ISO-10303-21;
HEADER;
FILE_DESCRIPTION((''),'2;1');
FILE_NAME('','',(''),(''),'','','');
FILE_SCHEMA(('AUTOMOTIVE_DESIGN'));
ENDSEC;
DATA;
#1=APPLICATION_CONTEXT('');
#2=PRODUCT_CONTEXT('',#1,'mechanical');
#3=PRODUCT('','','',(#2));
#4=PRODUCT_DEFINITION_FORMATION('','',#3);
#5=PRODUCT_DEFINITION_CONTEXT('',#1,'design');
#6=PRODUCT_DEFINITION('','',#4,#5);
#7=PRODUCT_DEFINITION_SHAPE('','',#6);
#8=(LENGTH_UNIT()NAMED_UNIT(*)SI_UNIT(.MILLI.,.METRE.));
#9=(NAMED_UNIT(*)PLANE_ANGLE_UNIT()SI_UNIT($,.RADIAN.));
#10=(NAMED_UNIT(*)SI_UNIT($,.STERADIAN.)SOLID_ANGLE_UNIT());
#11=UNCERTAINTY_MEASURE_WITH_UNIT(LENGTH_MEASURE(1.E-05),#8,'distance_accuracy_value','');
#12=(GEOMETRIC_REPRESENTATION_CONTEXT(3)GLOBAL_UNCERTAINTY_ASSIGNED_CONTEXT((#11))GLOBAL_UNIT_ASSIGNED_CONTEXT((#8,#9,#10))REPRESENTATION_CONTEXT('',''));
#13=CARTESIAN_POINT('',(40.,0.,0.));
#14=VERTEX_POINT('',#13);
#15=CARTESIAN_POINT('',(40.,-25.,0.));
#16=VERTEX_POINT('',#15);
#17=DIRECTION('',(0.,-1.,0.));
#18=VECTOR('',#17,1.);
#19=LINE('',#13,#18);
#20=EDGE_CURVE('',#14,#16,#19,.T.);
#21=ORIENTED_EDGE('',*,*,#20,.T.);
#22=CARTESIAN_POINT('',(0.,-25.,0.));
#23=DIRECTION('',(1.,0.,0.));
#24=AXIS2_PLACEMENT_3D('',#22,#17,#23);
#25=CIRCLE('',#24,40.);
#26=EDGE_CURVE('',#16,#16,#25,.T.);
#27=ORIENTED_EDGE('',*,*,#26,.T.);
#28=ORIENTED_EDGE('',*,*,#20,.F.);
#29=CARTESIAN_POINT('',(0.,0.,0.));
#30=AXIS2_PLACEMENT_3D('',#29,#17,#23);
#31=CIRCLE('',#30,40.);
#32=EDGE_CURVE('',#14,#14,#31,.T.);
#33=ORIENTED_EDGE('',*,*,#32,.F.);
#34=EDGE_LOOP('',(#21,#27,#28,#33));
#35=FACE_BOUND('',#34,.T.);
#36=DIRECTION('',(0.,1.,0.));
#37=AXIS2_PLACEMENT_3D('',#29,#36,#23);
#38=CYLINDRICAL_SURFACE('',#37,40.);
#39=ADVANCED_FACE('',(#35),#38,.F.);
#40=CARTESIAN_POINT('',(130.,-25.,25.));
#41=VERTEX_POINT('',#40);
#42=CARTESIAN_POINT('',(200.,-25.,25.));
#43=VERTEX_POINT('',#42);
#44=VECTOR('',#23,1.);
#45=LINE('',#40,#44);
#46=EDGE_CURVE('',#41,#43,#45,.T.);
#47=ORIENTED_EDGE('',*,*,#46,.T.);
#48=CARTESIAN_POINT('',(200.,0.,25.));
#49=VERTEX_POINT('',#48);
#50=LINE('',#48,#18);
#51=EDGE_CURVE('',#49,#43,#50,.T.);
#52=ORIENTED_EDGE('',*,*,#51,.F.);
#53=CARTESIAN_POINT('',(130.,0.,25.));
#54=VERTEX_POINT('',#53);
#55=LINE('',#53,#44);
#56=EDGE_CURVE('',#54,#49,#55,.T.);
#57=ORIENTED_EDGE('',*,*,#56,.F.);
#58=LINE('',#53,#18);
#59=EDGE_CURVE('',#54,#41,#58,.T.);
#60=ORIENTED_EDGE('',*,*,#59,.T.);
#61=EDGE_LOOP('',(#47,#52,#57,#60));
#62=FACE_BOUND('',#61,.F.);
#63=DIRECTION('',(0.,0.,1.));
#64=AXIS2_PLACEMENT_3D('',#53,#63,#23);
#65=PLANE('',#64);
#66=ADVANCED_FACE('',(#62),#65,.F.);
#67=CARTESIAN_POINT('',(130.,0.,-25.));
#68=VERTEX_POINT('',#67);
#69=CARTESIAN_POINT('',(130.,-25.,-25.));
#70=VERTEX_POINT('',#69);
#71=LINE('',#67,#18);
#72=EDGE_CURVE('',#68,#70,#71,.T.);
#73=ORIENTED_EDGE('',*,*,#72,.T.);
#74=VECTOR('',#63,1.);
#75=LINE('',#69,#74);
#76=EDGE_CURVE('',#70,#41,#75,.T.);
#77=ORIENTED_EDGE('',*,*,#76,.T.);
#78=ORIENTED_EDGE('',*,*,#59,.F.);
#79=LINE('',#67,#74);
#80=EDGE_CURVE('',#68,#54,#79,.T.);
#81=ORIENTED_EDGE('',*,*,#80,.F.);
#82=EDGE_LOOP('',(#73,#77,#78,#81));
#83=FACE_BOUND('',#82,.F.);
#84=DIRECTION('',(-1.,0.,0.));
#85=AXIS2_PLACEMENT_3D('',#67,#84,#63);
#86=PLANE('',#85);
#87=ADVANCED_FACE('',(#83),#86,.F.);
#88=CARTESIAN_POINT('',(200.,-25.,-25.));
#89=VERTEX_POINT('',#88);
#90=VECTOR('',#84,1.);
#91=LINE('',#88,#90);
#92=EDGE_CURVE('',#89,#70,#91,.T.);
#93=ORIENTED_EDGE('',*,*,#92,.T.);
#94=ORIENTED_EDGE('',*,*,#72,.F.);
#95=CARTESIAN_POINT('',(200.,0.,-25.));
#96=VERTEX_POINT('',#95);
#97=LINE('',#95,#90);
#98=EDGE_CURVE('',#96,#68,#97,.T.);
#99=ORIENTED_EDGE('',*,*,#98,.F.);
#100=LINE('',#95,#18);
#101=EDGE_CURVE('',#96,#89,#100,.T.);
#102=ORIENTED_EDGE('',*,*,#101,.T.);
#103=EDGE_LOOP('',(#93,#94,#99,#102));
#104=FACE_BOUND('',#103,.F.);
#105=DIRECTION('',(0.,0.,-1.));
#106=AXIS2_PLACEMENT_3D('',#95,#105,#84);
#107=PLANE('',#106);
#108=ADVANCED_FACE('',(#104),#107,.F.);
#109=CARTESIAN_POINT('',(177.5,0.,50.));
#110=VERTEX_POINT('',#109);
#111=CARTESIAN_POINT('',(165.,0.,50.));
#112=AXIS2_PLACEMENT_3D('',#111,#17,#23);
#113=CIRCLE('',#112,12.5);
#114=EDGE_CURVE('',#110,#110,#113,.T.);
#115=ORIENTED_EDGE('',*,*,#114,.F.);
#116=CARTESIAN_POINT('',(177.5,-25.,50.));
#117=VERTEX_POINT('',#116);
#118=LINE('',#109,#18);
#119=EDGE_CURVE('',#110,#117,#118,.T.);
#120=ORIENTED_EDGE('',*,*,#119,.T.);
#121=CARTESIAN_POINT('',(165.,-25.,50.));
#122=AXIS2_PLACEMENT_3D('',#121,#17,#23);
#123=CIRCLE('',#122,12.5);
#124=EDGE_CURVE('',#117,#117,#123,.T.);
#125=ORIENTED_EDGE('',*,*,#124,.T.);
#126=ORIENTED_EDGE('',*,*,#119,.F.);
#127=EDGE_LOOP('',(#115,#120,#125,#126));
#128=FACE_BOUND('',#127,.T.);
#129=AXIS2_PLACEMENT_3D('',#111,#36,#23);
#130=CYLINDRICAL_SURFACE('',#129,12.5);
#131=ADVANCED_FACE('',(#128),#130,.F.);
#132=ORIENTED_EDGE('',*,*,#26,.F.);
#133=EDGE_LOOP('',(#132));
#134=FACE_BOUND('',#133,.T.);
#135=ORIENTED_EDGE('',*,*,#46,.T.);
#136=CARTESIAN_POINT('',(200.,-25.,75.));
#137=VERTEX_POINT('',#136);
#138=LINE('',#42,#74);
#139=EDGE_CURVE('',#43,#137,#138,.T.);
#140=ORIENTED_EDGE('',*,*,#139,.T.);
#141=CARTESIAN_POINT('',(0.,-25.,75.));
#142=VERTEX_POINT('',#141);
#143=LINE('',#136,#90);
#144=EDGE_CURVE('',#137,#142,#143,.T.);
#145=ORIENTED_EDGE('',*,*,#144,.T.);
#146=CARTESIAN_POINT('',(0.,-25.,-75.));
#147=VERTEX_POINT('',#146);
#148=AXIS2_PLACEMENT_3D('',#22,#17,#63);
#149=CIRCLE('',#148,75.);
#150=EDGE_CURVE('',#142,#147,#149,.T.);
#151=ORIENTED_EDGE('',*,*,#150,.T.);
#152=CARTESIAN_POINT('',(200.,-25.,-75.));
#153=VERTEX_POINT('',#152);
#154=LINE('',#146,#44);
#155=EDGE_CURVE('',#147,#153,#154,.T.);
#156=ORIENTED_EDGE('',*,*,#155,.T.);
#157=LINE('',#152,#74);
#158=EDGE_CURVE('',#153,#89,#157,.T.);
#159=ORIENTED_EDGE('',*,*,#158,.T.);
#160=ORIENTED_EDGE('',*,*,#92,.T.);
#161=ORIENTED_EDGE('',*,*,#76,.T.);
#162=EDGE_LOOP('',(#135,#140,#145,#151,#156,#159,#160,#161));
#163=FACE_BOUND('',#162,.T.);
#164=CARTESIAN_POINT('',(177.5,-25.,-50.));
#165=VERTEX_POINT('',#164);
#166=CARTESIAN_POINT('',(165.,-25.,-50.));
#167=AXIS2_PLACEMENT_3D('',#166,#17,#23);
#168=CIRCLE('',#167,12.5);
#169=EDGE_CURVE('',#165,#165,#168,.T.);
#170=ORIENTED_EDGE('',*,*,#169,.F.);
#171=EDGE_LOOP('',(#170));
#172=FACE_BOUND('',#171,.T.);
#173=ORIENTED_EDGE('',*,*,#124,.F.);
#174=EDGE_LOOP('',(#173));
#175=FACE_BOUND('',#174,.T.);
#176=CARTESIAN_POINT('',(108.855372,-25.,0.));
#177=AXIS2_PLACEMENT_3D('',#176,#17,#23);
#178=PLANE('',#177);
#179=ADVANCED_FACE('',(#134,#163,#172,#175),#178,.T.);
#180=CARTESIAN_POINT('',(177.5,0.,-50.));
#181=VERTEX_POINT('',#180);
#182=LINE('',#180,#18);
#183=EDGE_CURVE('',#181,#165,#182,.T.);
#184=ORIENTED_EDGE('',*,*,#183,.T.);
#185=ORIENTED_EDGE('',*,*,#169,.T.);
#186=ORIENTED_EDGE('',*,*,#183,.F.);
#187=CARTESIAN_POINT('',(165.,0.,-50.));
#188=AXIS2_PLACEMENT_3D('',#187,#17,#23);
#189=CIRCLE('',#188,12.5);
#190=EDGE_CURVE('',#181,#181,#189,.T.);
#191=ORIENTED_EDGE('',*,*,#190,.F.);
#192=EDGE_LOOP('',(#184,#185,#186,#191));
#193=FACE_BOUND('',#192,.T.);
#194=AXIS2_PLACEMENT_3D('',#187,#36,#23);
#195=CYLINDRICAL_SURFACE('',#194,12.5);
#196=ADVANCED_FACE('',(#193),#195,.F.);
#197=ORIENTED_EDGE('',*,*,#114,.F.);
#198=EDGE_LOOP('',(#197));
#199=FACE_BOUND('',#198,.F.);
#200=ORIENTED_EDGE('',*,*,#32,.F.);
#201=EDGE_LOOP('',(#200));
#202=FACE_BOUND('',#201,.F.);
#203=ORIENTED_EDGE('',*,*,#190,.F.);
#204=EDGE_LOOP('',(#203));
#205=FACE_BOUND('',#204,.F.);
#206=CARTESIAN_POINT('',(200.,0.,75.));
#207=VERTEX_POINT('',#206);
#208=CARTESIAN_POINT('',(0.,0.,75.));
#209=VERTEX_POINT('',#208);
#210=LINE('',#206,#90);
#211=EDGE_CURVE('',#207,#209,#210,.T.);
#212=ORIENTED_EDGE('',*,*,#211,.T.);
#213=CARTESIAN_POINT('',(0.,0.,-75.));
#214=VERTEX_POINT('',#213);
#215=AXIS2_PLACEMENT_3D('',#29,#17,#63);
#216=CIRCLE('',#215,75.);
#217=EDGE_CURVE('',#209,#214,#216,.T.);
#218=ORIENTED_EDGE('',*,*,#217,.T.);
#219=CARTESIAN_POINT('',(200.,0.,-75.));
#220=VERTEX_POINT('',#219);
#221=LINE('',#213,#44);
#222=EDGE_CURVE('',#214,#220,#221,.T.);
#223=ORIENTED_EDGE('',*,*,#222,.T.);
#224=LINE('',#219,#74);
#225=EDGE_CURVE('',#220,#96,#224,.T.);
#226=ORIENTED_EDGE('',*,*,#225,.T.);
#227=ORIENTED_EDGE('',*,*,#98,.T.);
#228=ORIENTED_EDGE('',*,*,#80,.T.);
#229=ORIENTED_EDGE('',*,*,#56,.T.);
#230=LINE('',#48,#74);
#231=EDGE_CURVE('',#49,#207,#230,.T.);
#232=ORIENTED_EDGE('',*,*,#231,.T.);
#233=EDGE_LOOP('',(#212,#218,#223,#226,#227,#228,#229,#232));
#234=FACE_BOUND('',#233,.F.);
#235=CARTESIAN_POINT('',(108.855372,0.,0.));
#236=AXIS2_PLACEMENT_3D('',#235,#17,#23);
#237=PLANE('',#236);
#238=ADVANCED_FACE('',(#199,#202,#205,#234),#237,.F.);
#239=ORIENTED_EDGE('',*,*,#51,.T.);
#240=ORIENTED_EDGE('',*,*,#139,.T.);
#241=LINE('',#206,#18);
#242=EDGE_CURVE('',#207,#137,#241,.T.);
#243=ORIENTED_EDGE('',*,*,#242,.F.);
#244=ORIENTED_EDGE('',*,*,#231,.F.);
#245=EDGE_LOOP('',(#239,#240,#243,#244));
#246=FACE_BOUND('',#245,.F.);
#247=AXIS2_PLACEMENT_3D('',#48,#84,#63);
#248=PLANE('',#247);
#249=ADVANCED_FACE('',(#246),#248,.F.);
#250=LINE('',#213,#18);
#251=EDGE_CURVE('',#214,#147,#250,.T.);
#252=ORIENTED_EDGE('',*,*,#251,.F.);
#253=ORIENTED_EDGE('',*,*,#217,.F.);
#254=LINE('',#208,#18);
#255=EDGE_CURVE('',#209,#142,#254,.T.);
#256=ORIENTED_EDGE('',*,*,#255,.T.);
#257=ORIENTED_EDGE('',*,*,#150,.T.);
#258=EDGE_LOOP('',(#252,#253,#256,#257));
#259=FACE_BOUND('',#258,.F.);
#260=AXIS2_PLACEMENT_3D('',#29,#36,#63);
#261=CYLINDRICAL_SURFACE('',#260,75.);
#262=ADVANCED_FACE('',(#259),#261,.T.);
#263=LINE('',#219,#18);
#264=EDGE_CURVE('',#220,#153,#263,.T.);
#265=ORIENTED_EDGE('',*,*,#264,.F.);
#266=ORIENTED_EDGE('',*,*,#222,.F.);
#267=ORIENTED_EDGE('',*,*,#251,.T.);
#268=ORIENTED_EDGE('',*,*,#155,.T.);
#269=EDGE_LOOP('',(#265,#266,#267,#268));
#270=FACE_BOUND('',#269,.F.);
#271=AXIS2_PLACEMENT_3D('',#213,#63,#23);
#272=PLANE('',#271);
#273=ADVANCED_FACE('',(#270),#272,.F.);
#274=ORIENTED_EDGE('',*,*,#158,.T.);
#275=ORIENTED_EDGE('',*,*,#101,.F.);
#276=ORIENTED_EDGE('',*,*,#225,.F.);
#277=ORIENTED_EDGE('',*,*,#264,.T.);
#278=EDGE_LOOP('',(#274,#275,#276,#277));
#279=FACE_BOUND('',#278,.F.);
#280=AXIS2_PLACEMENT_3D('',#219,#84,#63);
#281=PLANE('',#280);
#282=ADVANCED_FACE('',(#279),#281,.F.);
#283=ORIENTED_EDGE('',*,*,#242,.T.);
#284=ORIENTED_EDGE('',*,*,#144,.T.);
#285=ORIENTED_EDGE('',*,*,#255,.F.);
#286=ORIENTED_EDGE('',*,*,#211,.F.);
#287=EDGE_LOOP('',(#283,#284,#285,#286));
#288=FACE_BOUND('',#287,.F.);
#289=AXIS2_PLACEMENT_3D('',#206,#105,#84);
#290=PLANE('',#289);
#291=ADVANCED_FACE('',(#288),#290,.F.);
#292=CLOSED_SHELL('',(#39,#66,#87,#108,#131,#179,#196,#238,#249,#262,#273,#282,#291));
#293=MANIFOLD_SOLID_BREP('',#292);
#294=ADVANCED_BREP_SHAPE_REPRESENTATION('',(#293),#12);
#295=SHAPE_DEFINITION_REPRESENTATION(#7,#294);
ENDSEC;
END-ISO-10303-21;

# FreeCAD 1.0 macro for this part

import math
import FreeCAD as App
import Part
import Sketcher

V = App.Vector

doc = App.newDocument("Part")
body = doc.addObject("PartDesign::Body", "Body")

sketch1 = doc.addObject("Sketcher::SketchObject", "Sketch")
body.addObject(sketch1)
sketch1.AttachmentSupport = (doc.XZ_Plane, [""])
sketch1.MapMode = "FlatFace"
sketch1.addGeometry(Part.LineSegment(V(200, 75, 0), V(0, 75, 0)), False)
sketch1.addGeometry(Part.ArcOfCircle(Part.Circle(V(0, 0, 0), V(0, 0, 1), 75), math.radians(90), math.radians(270)), False)
sketch1.addGeometry(Part.LineSegment(V(0, -75, 0), V(200, -75, 0)), False)
sketch1.addGeometry(Part.LineSegment(V(200, -75, 0), V(200, -25, 0)), False)
sketch1.addGeometry(Part.LineSegment(V(200, -25, 0), V(130, -25, 0)), False)
sketch1.addGeometry(Part.LineSegment(V(130, -25, 0), V(130, 25, 0)), False)
sketch1.addGeometry(Part.LineSegment(V(130, 25, 0), V(200, 25, 0)), False)
sketch1.addGeometry(Part.LineSegment(V(200, 25, 0), V(200, 75, 0)), False)
sketch1.addGeometry(Part.Circle(V(165, -50, 0), V(0, 0, 1), 12), False)
sketch1.addGeometry(Part.Circle(V(0, 0, 0), V(0, 0, 1), 40), False)
sketch1.addGeometry(Part.Circle(V(165, 50, 0), V(0, 0, 1), 12), False)
sketch1.addConstraint(Sketcher.Constraint("Tangent", 0, 2, 1, 1))
sketch1.addConstraint(Sketcher.Constraint("Tangent", 1, 2, 2, 1))
sketch1.addConstraint(Sketcher.Constraint("Coincident", 2, 2, 3, 1))
sketch1.addConstraint(Sketcher.Constraint("Coincident", 3, 2, 4, 1))
sketch1.addConstraint(Sketcher.Constraint("Coincident", 4, 2, 5, 1))
sketch1.addConstraint(Sketcher.Constraint("Coincident", 5, 2, 6, 1))
sketch1.addConstraint(Sketcher.Constraint("Coincident", 6, 2, 7, 1))
sketch1.addConstraint(Sketcher.Constraint("Coincident", 7, 2, 0, 1))
sketch1.addConstraint(Sketcher.Constraint("Horizontal", 0))
sketch1.addConstraint(Sketcher.Constraint("Horizontal", 2))
sketch1.addConstraint(Sketcher.Constraint("Vertical", 3))
sketch1.addConstraint(Sketcher.Constraint("Horizontal", 4))
sketch1.addConstraint(Sketcher.Constraint("Vertical", 5))
sketch1.addConstraint(Sketcher.Constraint("Horizontal", 6))
sketch1.addConstraint(Sketcher.Constraint("Vertical", 7))
sketch1.addConstraint(Sketcher.Constraint("Coincident", 1, 3, -1, 1))
sketch1.addConstraint(Sketcher.Constraint("Coincident", 9, 3, -1, 1))
sketch1.addConstraint(Sketcher.Constraint("Equal", 8, 10))
sketch1.addConstraint(Sketcher.Constraint("Symmetric", 8, 3, 10, 3, -1))
sketch1.addConstraint(Sketcher.Constraint("Symmetric", 3, 2, 6, 2, -1))
sketch1.addConstraint(Sketcher.Constraint("Equal", 3, 5))
sketch1.addConstraint(Sketcher.Constraint("Diameter", 8, 25.0))
sketch1.addConstraint(Sketcher.Constraint("Diameter", 9, 80.0))
sketch1.addConstraint(Sketcher.Constraint("Radius", 1, 75.0))
sketch1.addConstraint(Sketcher.Constraint("DistanceX", 0, 2, 0, 1, 200.0))
sketch1.addConstraint(Sketcher.Constraint("DistanceX", 4, 2, 4, 1, 70.0))
sketch1.addConstraint(Sketcher.Constraint("DistanceX", -1, 1, 8, 3, 165.0))
sketch1.addConstraint(Sketcher.Constraint("DistanceY", 8, 3, -1, 1, 50.0))
pad1 = doc.addObject("PartDesign::Pad", "Pad")
body.addObject(pad1)
pad1.Profile = sketch1
pad1.Length = 25

doc.recompute()
